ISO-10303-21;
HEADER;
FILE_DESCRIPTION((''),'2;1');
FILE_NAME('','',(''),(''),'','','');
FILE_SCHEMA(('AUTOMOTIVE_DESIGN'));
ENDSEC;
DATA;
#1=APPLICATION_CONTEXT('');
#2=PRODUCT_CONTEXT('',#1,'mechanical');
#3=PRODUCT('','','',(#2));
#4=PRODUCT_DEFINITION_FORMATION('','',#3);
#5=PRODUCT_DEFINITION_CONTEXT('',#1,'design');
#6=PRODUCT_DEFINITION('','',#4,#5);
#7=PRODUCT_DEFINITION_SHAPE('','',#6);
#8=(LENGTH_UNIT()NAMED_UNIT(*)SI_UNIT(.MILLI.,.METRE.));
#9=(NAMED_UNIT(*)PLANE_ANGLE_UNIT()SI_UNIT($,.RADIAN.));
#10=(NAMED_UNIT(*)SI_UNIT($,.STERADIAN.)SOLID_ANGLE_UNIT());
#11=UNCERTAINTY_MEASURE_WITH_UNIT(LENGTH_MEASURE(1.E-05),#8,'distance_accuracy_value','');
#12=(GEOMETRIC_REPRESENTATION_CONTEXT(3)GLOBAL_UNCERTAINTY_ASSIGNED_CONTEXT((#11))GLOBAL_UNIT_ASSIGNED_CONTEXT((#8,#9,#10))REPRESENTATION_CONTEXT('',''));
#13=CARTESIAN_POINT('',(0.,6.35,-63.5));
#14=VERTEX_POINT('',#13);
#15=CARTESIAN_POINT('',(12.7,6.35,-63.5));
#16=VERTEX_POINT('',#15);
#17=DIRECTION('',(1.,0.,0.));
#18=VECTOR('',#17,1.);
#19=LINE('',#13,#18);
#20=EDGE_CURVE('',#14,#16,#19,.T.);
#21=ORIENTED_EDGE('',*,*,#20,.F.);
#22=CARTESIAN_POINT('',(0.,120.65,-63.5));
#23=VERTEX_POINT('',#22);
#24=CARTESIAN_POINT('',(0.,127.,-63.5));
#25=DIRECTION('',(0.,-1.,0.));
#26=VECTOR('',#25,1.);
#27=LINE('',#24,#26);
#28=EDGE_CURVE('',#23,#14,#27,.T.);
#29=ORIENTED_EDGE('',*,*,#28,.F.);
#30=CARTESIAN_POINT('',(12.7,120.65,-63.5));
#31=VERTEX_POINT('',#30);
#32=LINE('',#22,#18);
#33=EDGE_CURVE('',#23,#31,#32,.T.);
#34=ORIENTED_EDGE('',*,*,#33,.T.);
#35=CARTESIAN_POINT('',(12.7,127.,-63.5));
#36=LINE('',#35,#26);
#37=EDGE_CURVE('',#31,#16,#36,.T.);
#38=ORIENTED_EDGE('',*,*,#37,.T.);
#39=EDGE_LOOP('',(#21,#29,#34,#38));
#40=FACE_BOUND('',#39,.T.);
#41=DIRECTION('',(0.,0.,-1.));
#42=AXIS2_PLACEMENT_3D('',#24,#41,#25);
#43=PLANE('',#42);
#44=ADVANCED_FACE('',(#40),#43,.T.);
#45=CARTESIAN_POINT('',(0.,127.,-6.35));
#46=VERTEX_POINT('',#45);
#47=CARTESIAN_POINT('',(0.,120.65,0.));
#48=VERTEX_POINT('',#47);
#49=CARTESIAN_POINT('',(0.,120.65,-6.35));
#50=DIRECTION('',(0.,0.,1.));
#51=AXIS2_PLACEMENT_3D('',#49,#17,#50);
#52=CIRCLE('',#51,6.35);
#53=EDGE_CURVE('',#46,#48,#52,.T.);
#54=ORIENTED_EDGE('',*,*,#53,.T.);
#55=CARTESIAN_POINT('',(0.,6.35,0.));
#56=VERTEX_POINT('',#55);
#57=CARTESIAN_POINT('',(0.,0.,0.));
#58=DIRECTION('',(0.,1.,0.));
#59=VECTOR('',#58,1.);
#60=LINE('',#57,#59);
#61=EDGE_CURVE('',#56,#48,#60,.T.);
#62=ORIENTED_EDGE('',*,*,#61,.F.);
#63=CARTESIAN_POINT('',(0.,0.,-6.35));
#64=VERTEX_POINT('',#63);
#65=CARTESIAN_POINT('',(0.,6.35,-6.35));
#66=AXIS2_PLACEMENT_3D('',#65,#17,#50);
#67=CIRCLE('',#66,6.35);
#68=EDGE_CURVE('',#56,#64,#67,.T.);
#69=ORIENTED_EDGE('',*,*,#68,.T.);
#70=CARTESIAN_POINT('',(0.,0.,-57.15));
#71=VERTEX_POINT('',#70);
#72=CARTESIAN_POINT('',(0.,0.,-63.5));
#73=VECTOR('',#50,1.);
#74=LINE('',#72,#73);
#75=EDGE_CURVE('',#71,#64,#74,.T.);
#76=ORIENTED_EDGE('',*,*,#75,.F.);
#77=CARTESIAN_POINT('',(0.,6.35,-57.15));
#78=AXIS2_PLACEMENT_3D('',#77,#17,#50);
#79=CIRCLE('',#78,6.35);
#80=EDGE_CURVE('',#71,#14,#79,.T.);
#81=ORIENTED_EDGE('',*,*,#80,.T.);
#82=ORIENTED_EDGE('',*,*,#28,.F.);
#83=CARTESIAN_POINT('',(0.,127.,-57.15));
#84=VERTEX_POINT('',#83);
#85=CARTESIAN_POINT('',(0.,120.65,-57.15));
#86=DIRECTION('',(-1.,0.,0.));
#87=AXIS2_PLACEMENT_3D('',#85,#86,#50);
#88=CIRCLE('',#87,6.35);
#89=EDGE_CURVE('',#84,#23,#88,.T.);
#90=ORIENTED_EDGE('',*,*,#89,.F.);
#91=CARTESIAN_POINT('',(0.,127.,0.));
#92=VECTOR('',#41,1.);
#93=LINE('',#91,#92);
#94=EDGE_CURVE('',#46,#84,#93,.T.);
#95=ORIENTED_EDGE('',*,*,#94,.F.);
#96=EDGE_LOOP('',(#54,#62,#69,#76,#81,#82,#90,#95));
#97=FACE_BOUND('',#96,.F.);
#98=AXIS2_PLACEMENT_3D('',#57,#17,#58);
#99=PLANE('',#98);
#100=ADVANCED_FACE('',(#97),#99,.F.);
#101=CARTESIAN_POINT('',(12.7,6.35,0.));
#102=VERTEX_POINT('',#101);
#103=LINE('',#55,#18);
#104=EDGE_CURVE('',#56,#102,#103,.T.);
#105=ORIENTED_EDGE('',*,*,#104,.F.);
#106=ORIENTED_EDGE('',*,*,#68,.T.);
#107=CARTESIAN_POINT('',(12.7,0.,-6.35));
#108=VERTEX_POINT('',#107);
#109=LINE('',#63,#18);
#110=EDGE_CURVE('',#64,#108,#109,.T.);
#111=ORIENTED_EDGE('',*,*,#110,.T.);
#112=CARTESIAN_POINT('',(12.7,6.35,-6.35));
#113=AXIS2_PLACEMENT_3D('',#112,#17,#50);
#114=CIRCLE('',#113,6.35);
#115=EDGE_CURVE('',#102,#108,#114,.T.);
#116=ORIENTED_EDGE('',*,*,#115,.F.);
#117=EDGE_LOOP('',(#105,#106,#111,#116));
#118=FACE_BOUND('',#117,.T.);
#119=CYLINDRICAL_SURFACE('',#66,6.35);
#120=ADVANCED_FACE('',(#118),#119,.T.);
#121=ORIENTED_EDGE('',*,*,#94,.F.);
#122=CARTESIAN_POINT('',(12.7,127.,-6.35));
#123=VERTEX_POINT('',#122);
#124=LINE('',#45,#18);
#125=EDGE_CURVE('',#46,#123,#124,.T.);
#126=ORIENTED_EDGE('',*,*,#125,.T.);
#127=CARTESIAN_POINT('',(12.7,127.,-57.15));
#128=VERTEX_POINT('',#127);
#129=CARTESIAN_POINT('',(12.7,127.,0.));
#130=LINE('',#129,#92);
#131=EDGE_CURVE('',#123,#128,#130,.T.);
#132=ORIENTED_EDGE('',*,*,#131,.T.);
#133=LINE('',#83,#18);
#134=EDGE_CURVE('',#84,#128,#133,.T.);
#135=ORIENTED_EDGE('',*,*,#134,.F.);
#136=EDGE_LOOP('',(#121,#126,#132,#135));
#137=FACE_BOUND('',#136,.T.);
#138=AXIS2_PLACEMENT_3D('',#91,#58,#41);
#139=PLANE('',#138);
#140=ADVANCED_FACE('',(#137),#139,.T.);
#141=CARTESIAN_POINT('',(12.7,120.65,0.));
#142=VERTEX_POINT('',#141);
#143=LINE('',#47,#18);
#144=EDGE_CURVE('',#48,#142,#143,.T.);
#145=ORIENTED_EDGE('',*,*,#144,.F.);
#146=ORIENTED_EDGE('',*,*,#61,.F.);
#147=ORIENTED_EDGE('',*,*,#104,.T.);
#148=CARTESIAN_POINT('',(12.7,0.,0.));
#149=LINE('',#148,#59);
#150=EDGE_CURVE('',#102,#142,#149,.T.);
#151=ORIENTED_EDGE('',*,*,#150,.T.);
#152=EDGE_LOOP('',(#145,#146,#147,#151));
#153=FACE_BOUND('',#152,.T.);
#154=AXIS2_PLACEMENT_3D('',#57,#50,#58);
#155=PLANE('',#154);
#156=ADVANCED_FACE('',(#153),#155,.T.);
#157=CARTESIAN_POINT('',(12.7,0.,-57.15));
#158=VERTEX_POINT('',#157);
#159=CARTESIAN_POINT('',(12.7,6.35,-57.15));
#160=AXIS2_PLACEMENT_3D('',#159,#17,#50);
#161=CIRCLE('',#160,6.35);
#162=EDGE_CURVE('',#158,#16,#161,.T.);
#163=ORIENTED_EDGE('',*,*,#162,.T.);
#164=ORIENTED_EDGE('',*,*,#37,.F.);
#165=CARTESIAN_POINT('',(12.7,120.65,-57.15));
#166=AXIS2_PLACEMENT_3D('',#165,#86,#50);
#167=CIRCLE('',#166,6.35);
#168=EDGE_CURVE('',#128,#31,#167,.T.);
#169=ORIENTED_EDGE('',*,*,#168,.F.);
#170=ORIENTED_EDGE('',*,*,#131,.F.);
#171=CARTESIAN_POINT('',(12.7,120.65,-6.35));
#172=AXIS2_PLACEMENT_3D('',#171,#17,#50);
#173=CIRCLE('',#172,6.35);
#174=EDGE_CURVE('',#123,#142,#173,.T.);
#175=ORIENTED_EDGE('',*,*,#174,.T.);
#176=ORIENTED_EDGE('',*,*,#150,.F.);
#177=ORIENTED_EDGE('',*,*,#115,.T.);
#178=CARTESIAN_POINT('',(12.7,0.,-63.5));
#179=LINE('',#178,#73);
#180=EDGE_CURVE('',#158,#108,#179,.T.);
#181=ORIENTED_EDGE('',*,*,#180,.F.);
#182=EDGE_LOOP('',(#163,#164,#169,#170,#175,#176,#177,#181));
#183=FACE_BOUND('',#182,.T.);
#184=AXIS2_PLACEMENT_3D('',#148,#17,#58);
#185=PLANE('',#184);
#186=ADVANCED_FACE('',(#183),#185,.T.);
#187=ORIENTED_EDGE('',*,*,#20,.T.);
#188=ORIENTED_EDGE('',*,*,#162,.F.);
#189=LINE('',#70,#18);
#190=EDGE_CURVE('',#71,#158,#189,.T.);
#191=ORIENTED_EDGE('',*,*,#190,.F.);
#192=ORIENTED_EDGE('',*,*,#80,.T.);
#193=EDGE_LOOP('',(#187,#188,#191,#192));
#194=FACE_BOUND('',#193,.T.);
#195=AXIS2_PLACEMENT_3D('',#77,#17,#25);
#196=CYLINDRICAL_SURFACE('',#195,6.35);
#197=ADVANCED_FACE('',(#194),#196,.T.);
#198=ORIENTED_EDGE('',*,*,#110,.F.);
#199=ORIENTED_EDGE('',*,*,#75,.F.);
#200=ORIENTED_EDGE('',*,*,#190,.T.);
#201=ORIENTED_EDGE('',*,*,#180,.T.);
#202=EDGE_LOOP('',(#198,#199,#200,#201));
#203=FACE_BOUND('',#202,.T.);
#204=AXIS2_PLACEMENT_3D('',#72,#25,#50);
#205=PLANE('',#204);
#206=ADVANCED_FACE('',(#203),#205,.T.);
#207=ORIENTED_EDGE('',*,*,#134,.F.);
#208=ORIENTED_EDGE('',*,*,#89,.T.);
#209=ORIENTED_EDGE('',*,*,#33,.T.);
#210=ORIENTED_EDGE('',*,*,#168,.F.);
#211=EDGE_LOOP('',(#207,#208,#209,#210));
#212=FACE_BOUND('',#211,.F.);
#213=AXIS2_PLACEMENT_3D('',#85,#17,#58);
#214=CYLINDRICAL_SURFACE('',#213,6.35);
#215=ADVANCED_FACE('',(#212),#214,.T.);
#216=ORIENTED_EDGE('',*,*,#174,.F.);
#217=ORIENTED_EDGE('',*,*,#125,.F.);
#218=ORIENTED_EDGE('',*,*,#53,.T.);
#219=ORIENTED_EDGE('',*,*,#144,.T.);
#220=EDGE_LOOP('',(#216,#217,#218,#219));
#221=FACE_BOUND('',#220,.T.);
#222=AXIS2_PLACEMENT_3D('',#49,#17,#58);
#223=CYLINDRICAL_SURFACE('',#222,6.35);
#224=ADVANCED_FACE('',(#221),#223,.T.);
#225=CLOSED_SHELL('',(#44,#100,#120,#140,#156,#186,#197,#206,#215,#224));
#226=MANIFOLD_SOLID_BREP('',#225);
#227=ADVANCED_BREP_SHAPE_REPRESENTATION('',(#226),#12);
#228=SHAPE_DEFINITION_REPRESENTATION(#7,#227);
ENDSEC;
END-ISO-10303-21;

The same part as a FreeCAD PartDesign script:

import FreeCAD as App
import Part
import Sketcher
Q = App.Units.Quantity


def edges_at(feature, points):
    """Names of the edges that pass closest to the given points."""
    edges = feature.Shape.Edges
    near = lambda p: min(range(len(edges)), key=lambda i: edges[i].distToShape(Part.Vertex(*p))[0])
    return sorted({f"Edge{near(p) + 1}" for p in points})

doc = App.newDocument("Part")
body = doc.addObject("PartDesign::Body", "Body")

sketch1 = body.newObject("Sketcher::SketchObject", "Sketch")
sketch1.AttachmentSupport = (doc.getObject("YZ_Plane"), [""])
sketch1.MapMode = "FlatFace"
sketch1.addGeometry([
    Part.LineSegment(App.Vector(127, 0, 0), App.Vector(0, 0, 0)),
    Part.LineSegment(App.Vector(0, 0, 0), App.Vector(0, -64, 0)),
    Part.LineSegment(App.Vector(0, -64, 0), App.Vector(127, -64, 0)),
    Part.LineSegment(App.Vector(127, -64, 0), App.Vector(127, 0, 0)),
], False)
sketch1.addConstraint([
    Sketcher.Constraint("Coincident", 0, 2, 1, 1),
    Sketcher.Constraint("Coincident", 1, 2, 2, 1),
    Sketcher.Constraint("Coincident", 2, 2, 3, 1),
    Sketcher.Constraint("Coincident", 3, 2, 0, 1),
    Sketcher.Constraint("Horizontal", 0),
    Sketcher.Constraint("Vertical", 1),
    Sketcher.Constraint("Horizontal", 2),
    Sketcher.Constraint("Vertical", 3),
    Sketcher.Constraint("Coincident", 0, 2, -1, 1),
    Sketcher.Constraint("DistanceX", 0, 2, 0, 1, Q("5 in")),
    Sketcher.Constraint("DistanceY", 1, 2, 1, 1, Q("2.5 in")),
])
pad1 = body.newObject("PartDesign::Pad", "Pad")
pad1.Profile = sketch1
pad1.Length = Q("0.5 in")
doc.recompute()

fillet = body.newObject("PartDesign::Fillet", "Fillet")
fillet.Base = (pad1, edges_at(pad1, [(6.35, 127, -63.5)]))
fillet.Radius = Q("0.25 in")
doc.recompute()

fillet2 = body.newObject("PartDesign::Fillet", "Fillet001")
fillet2.Base = (fillet, edges_at(fillet, [(6.35, 127, 0)]))
fillet2.Radius = Q("0.25 in")
doc.recompute()

fillet3 = body.newObject("PartDesign::Fillet", "Fillet002")
fillet3.Base = (fillet2, edges_at(fillet2, [(6.35, 0, 0)]))
fillet3.Radius = Q("0.25 in")
doc.recompute()

fillet4 = body.newObject("PartDesign::Fillet", "Fillet003")
fillet4.Base = (fillet3, edges_at(fillet3, [(6.35, 0, -63.5)]))
fillet4.Radius = Q("0.25 in")

doc.recompute()
